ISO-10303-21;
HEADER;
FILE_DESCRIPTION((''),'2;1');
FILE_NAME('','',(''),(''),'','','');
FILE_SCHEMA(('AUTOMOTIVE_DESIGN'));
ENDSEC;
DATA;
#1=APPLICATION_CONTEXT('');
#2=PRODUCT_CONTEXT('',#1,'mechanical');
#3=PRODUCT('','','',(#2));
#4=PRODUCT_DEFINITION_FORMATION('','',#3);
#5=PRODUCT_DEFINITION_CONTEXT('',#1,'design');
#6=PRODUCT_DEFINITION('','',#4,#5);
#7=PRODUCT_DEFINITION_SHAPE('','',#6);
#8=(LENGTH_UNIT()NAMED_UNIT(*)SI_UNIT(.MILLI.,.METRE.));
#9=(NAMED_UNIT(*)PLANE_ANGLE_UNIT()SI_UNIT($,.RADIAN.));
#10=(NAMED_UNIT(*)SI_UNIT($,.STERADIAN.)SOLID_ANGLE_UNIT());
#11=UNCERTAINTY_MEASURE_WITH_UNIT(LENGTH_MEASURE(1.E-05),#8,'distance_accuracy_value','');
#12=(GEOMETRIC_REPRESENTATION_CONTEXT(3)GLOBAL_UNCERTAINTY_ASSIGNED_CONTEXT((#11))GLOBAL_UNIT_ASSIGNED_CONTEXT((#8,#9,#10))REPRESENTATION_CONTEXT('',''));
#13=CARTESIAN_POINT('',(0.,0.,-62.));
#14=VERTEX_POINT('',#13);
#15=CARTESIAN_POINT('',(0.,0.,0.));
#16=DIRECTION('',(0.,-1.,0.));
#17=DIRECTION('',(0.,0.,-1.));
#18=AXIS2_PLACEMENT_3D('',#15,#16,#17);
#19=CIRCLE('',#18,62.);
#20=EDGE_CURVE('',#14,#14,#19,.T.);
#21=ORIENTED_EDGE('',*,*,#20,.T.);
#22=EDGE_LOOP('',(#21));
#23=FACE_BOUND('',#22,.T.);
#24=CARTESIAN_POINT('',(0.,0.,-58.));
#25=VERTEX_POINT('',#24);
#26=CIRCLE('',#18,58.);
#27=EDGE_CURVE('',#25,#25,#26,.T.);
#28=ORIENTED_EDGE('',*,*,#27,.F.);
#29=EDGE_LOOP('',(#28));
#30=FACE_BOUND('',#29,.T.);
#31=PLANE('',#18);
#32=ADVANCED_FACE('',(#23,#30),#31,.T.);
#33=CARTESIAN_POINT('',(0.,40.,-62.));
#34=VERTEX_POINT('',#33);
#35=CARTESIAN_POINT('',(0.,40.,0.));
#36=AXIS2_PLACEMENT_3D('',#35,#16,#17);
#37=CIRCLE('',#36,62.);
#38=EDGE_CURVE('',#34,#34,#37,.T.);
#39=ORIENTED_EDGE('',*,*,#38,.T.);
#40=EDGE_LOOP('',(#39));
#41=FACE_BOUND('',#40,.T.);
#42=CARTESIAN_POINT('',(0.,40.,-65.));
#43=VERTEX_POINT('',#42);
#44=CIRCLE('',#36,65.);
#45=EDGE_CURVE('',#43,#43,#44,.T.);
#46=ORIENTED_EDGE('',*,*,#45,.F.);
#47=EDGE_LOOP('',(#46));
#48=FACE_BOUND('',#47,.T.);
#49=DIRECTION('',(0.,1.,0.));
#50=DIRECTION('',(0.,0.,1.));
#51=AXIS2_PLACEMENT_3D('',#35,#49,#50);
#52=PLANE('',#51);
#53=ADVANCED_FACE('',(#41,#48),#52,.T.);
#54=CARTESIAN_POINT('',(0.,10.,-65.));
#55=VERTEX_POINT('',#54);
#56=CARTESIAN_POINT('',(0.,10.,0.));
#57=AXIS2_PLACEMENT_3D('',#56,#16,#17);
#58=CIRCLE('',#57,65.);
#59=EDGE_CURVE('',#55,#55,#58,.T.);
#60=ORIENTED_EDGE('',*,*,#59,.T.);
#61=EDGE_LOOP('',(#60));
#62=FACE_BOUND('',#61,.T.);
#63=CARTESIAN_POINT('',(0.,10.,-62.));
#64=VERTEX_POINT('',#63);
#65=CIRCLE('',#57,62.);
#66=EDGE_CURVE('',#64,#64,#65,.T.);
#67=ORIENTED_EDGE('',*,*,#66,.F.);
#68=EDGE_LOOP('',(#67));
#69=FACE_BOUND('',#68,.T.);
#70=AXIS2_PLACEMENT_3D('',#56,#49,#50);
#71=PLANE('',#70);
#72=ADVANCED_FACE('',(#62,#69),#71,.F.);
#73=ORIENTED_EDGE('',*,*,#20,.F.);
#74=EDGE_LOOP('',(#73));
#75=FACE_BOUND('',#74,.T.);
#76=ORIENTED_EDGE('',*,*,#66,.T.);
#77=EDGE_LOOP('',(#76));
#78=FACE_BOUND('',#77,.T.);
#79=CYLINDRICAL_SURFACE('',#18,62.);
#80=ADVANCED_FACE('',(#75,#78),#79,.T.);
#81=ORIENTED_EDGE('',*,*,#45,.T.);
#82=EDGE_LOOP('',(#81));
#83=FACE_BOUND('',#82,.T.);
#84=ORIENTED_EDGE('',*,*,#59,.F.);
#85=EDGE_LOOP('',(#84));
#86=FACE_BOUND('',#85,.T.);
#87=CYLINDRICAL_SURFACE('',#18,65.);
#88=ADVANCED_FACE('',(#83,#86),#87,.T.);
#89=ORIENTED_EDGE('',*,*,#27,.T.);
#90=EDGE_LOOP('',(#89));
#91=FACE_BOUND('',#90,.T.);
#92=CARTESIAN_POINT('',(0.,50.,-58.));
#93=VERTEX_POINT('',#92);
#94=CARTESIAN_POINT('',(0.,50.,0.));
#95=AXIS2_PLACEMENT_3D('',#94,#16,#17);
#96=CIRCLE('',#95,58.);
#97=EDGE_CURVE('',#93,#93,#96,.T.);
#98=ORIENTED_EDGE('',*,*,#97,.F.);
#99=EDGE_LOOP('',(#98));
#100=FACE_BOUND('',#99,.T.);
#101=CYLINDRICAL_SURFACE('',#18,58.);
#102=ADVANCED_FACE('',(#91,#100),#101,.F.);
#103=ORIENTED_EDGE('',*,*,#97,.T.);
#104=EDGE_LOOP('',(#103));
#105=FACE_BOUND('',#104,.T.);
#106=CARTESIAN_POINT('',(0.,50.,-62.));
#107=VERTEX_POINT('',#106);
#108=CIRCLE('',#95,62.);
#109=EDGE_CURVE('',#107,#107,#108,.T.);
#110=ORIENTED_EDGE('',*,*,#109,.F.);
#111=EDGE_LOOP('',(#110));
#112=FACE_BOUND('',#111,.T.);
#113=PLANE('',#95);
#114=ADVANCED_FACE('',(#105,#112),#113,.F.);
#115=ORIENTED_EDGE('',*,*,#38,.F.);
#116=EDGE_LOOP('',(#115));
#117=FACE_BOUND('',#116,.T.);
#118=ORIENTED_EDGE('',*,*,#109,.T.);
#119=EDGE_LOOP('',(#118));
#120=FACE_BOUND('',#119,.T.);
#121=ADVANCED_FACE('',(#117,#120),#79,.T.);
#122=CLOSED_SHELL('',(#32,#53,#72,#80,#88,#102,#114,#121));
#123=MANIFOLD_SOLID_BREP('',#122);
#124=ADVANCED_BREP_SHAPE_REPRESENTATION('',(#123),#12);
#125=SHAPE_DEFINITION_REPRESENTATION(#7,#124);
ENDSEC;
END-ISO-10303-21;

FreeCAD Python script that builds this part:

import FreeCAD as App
import Part
import Sketcher
Q = App.Units.Quantity


def add_polygon(sketch, points):
    """Adds a closed chain of lines whose ends are joined by coincident constraints."""
    first, n = sketch.GeometryCount, len(points)
    for a, b in zip(points, points[1:] + points[:1]):
        sketch.addGeometry(Part.LineSegment(App.Vector(*a, 0), App.Vector(*b, 0)), False)
    for i in range(n):
        sketch.addConstraint(Sketcher.Constraint("Coincident", first + i, 2, first + (i + 1) % n, 1))

doc = App.newDocument("Part")
body = doc.addObject("PartDesign::Body", "Body")

# Sketch on XY plane
sketch1 = body.newObject("Sketcher::SketchObject", "Sketch")
sketch1.AttachmentSupport = (doc.getObject("XY_Plane"), [""])
sketch1.MapMode = "FlatFace"
add_polygon(sketch1, [(-62, 0), (-58, 0), (-58, 50), (-62, 50), (-62, 40), (-65, 40), (-65, 10), (-62, 10)])  # lines 0-7
sketch1.addConstraint([
    Sketcher.Constraint("Horizontal", 0),
    Sketcher.Constraint("Vertical", 1),
    Sketcher.Constraint("Horizontal", 2),
    Sketcher.Constraint("Vertical", 3),
    Sketcher.Constraint("Horizontal", 4),
    Sketcher.Constraint("Vertical", 5),
    Sketcher.Constraint("Horizontal", 6),
    Sketcher.Constraint("Vertical", 7),
    Sketcher.Constraint("PointOnObject", 0, 2, -1),
    Sketcher.Constraint("Vertical", 3, 2, 6, 2),
    Sketcher.Constraint("Equal", 3, 7),
    Sketcher.Constraint("DistanceX", 0, 1, 0, 2, Q("4 mm")),
    Sketcher.Constraint("DistanceX", 4, 2, 4, 1, Q("3 mm")),
    Sketcher.Constraint("DistanceY", 1, 1, 1, 2, Q("50 mm")),
    Sketcher.Constraint("DistanceY", 3, 2, 3, 1, Q("10 mm")),
    Sketcher.Constraint("DistanceX", 0, 2, -1, 1, Q("58 mm")),
])
revolution = body.newObject("PartDesign::Revolution", "Revolution")
revolution.Profile = sketch1
revolution.ReferenceAxis = (sketch1, ["V_Axis"])
revolution.Angle = 360

doc.recompute()
